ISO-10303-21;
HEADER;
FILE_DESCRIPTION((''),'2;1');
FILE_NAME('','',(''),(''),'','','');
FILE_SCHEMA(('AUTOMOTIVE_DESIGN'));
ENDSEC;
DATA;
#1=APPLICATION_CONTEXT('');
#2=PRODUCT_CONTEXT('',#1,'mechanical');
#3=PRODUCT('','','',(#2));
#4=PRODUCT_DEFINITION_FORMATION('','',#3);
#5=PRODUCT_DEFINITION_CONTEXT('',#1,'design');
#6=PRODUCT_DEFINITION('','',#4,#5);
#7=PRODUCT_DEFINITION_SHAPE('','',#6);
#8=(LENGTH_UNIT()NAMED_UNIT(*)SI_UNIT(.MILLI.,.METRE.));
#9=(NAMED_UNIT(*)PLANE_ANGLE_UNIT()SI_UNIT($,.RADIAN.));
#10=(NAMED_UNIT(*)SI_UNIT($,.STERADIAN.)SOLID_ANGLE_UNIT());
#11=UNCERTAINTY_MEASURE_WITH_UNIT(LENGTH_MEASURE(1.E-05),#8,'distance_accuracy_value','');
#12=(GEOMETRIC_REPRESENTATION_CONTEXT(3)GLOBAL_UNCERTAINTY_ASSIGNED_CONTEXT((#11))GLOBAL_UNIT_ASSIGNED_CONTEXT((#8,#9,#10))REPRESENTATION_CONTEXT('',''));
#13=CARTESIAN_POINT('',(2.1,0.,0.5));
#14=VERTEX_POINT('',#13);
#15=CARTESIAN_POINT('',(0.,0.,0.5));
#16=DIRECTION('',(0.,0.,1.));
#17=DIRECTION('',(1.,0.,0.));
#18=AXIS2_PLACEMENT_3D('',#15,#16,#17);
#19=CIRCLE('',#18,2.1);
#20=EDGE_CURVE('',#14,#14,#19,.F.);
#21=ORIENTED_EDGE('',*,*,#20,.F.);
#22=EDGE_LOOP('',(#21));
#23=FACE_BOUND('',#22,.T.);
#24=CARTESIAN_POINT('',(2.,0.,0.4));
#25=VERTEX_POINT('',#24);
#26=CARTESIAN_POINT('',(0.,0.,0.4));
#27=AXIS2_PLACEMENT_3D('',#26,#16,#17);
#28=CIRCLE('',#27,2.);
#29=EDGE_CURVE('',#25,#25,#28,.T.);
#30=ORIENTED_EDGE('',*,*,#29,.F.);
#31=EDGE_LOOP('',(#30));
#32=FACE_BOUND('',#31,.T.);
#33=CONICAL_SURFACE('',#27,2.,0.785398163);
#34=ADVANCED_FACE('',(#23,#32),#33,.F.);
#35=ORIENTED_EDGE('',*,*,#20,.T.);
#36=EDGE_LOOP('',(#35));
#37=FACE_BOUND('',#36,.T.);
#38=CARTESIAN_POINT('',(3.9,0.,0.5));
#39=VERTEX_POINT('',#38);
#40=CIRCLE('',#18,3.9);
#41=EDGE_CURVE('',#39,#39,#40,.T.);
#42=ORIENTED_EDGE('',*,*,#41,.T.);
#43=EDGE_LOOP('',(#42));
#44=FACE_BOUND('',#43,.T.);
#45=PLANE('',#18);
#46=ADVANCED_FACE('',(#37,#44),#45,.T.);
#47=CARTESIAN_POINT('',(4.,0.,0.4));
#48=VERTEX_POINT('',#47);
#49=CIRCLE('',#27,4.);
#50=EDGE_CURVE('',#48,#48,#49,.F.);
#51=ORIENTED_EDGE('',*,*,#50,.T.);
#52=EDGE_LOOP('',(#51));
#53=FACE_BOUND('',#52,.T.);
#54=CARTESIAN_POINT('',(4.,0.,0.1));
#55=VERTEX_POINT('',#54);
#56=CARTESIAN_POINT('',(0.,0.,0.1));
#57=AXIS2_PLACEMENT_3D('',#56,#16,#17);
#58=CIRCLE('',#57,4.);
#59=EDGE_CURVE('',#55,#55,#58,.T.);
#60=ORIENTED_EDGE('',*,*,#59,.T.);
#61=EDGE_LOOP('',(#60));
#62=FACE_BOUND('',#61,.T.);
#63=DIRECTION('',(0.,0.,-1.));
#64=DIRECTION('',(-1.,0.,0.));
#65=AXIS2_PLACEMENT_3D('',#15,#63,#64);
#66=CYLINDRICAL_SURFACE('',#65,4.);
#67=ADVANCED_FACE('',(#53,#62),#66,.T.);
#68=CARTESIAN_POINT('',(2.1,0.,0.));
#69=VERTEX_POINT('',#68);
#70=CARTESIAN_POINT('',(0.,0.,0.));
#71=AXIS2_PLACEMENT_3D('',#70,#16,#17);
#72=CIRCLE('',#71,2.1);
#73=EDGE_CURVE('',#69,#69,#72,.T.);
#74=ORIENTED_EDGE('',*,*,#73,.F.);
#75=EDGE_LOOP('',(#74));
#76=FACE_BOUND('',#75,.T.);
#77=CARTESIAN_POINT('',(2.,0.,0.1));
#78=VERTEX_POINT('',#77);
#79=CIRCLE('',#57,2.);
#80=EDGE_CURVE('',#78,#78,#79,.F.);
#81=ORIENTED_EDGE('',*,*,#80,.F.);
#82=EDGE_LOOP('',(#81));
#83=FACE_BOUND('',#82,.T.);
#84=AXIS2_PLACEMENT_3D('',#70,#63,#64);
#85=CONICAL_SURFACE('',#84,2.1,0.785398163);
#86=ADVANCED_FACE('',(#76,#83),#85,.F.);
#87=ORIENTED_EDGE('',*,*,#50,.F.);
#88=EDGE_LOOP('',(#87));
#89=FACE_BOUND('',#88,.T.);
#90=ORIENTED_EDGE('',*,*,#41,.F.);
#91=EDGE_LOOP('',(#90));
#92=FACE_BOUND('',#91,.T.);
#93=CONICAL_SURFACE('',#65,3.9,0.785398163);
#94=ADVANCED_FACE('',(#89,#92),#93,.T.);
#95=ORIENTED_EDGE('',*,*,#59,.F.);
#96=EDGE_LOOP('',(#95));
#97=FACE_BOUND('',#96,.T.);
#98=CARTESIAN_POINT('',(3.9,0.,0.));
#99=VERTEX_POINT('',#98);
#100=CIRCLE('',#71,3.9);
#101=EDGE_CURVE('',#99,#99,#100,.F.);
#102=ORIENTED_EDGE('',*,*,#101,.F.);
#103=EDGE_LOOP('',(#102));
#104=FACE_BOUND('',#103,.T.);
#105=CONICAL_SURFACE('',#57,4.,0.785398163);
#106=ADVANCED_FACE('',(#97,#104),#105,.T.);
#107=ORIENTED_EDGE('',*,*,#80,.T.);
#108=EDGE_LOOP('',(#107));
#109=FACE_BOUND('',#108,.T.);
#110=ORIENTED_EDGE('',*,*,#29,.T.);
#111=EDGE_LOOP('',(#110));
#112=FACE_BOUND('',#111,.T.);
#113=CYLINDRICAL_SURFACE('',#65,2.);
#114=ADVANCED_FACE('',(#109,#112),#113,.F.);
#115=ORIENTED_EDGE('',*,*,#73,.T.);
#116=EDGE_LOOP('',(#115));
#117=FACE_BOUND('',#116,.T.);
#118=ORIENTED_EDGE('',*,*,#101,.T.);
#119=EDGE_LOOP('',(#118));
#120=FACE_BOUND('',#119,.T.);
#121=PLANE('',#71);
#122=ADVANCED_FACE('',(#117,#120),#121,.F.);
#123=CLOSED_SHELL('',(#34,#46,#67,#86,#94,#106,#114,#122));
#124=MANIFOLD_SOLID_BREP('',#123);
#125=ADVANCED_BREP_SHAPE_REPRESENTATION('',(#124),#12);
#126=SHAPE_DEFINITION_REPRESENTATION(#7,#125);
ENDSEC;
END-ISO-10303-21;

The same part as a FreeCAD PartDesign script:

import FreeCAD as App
import Part
import Sketcher

V = App.Vector
Q = App.Units.Quantity


def edges_at(feature, points):
    """Names of the edges that pass closest to the given points."""
    edges = feature.Shape.Edges
    near = lambda p: min(range(len(edges)), key=lambda i: edges[i].distToShape(Part.Vertex(*p))[0])
    return sorted({f"Edge{near(p) + 1}" for p in points})

doc = App.newDocument("Part")
params = doc.addObject("Spreadsheet::Sheet", "Params")
for row, (alias, value) in enumerate([
    ("sketch1_diameter", "8 mm"),
    ("sketch1_diameter2", "4 mm"),
    ("pad1_length", "0.5 mm"),
    ("chamfer_size", "0.1 mm"),
], start=1):
    params.set(f"A{row}", alias)
    params.set(f"B{row}", "=" + value)
    params.setAlias(f"B{row}", alias)

body = doc.addObject("PartDesign::Body", "Body")

# Sketch on XY plane
sketch1 = body.newObject("Sketcher::SketchObject", "Sketch")
sketch1.AttachmentSupport = (doc.getObject("XY_Plane"), [""])
sketch1.MapMode = "FlatFace"
sketch1.addGeometry([
    Part.Circle(V(0, 0, 0), V(0, 0, 1), 4),
    Part.Circle(V(0, 0, 0), V(0, 0, 1), 2),
], False)
sketch1.addConstraint([
    Sketcher.Constraint("Coincident", 0, 3, -1, 1),
    Sketcher.Constraint("Coincident", 1, 3, -1, 1),
    Sketcher.Constraint("Diameter", 0, Q("8 mm")),
    Sketcher.Constraint("Diameter", 1, Q("4 mm")),
])
sketch1.setExpression("Constraints[2]", "Params.sketch1_diameter")
sketch1.setExpression("Constraints[3]", "Params.sketch1_diameter2")
pad1 = body.newObject("PartDesign::Pad", "Pad")
pad1.Profile = sketch1
pad1.setExpression("Length", "Params.pad1_length")
doc.recompute()

chamfer = body.newObject("PartDesign::Chamfer", "Chamfer")
chamfer.Base = (pad1, edges_at(pad1, [
    (-4, 0, 0),
    (-4, 0, 0.5),
    (-2, 0, 0),
    (-2, 0, 0.5),
]))
chamfer.setExpression("Size", "Params.chamfer_size")

doc.recompute()
